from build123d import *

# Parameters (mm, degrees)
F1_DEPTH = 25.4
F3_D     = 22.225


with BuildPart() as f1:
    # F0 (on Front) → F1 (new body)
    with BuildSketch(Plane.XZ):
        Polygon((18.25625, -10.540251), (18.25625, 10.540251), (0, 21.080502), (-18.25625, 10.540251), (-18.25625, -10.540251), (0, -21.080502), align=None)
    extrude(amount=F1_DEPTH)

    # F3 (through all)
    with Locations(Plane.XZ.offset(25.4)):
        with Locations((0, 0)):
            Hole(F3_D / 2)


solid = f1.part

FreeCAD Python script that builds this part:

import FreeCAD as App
import Part
import Sketcher
Q = App.Units.Quantity


def add_polygon(sketch, points):
    """Adds a closed chain of lines whose ends are joined by coincident constraints."""
    first, n = sketch.GeometryCount, len(points)
    for a, b in zip(points, points[1:] + points[:1]):
        sketch.addGeometry(Part.LineSegment(App.Vector(*a, 0), App.Vector(*b, 0)), False)
    for i in range(n):
        sketch.addConstraint(Sketcher.Constraint("Coincident", first + i, 2, first + (i + 1) % n, 1))

doc = App.newDocument("Part")
body = doc.addObject("PartDesign::Body", "Body")

# Sketch on XZ plane
sketch1 = body.newObject("Sketcher::SketchObject", "Sketch")
sketch1.AttachmentSupport = (doc.getObject("XZ_Plane"), [""])
sketch1.MapMode = "FlatFace"
add_polygon(sketch1, [(18, -11), (18, 11), (0, 21), (-18, 11), (-18, -11), (0, -21)])  # lines 0-5
sketch1.addConstraint([
    Sketcher.Constraint("Vertical", 0),
    Sketcher.Constraint("Vertical", 3),
    Sketcher.Constraint("Symmetric", 0, 2, 3, 2, -1, 1),
    Sketcher.Constraint("Symmetric", 1, 2, 4, 2, -1, 1),
    Sketcher.Constraint("PointOnObject", 1, 2, -2),
    Sketcher.Constraint("Parallel", 2, 5),
    Sketcher.Constraint("Horizontal", 0, 2, 2, 2),
    Sketcher.Constraint("Angle", 1, Q("150 deg")),
    Sketcher.Constraint("DistanceX", -1, 1, 0, 2, Q("0.71875 in")),
    Sketcher.Constraint("DistanceY", 0, 1, 0, 2, Q("21.080502 mm")),
])
pad1 = body.newObject("PartDesign::Pad", "Pad")
pad1.Profile = sketch1
pad1.Length = Q("1 in")

# Sketch on XZ plane
sketch2 = body.newObject("Sketcher::SketchObject", "Sketch001")
sketch2.AttachmentSupport = (doc.getObject("XZ_Plane"), [""])
sketch2.MapMode = "FlatFace"
sketch2.AttachmentOffset = App.Placement(App.Vector(0, 0, 1 * 25.4), App.Rotation())
sketch2.addGeometry(Part.Circle(App.Vector(0, 0, 0), App.Vector(0, 0, 1), 11), False)
sketch2.addConstraint([
    Sketcher.Constraint("Coincident", 0, 3, -1, 1),
    Sketcher.Constraint("Diameter", 0, Q("0.875 in")),
])
doc.recompute()
hole = body.newObject("PartDesign::Hole", "Hole")
hole.Profile = sketch2
hole.ThreadType = "None"
hole.Diameter = Q("0.875 in")
hole.DepthType = "ThroughAll"

doc.recompute()
